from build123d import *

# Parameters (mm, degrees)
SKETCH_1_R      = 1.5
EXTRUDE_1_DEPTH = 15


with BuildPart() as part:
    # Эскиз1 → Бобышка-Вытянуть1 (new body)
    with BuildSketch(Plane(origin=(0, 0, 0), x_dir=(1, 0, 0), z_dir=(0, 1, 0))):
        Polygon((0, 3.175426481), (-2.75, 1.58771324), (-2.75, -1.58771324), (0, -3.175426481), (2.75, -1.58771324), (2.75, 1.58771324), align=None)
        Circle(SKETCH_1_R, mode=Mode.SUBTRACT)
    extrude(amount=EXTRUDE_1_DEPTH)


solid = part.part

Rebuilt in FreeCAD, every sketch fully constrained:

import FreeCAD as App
import Part
import Sketcher
from FreeCAD import Vector
Q = App.Units.Quantity


def add_polygon(sketch, points):
    """Adds a closed chain of lines whose ends are joined by coincident constraints."""
    first, n = sketch.GeometryCount, len(points)
    for a, b in zip(points, points[1:] + points[:1]):
        sketch.addGeometry(Part.LineSegment(App.Vector(*a, 0), App.Vector(*b, 0)), False)
    for i in range(n):
        sketch.addConstraint(Sketcher.Constraint("Coincident", first + i, 2, first + (i + 1) % n, 1))

doc = App.newDocument("Part")
params = doc.addObject("Spreadsheet::Sheet", "Params")
for row, (alias, value) in enumerate([
    ("sketch1_diameter", "3 mm"),
    ("pad1_length", "15 mm"),
], start=1):
    params.set(f"A{row}", alias)
    params.set(f"B{row}", "=" + value)
    params.setAlias(f"B{row}", alias)

body = doc.addObject("PartDesign::Body", "Body")

sketch1 = body.newObject("Sketcher::SketchObject", "Sketch")
sketch1.AttachmentSupport = (doc.getObject("XZ_Plane"), [""])
sketch1.MapMode = "FlatFace"
add_polygon(sketch1, [(0, -3.175426), (-2.75, -1.587713), (-2.75, 1.587713), (0, 3.175426), (2.75, 1.587713), (2.75, -1.587713)])
sketch1.addGeometry(Part.Circle(Vector(0, 0, 0), Vector(0, 0, 1), 1.5), False)
sketch1.addConstraint([
    Sketcher.Constraint("Vertical", 1),
    Sketcher.Constraint("Vertical", 4),
    Sketcher.Constraint("Coincident", 6, 3, -1, 1),
    Sketcher.Constraint("Symmetric", 0, 2, 3, 2, -1, 1),
    Sketcher.Constraint("Symmetric", 2, 2, 5, 2, -1, 1),
    Sketcher.Constraint("PointOnObject", 2, 2, -2),
    Sketcher.Constraint("Parallel", 2, 5),
    Sketcher.Constraint("Horizontal", 1, 2, 3, 2),
    Sketcher.Constraint("Diameter", 6, 3.0),
    Sketcher.Constraint("Angle", 0, Q("150 deg")),
    Sketcher.Constraint("DistanceX", 1, 2, 3, 2, 5.5),
    Sketcher.Constraint("DistanceY", 1, 1, 1, 2, 3.175426),
])
sketch1.setExpression("Constraints[14]", "Params.sketch1_diameter")
pad1 = body.newObject("PartDesign::Pad", "Pad")
pad1.Profile = sketch1
pad1.setExpression("Length", "Params.pad1_length")
pad1.Reversed = True

doc.recompute()
